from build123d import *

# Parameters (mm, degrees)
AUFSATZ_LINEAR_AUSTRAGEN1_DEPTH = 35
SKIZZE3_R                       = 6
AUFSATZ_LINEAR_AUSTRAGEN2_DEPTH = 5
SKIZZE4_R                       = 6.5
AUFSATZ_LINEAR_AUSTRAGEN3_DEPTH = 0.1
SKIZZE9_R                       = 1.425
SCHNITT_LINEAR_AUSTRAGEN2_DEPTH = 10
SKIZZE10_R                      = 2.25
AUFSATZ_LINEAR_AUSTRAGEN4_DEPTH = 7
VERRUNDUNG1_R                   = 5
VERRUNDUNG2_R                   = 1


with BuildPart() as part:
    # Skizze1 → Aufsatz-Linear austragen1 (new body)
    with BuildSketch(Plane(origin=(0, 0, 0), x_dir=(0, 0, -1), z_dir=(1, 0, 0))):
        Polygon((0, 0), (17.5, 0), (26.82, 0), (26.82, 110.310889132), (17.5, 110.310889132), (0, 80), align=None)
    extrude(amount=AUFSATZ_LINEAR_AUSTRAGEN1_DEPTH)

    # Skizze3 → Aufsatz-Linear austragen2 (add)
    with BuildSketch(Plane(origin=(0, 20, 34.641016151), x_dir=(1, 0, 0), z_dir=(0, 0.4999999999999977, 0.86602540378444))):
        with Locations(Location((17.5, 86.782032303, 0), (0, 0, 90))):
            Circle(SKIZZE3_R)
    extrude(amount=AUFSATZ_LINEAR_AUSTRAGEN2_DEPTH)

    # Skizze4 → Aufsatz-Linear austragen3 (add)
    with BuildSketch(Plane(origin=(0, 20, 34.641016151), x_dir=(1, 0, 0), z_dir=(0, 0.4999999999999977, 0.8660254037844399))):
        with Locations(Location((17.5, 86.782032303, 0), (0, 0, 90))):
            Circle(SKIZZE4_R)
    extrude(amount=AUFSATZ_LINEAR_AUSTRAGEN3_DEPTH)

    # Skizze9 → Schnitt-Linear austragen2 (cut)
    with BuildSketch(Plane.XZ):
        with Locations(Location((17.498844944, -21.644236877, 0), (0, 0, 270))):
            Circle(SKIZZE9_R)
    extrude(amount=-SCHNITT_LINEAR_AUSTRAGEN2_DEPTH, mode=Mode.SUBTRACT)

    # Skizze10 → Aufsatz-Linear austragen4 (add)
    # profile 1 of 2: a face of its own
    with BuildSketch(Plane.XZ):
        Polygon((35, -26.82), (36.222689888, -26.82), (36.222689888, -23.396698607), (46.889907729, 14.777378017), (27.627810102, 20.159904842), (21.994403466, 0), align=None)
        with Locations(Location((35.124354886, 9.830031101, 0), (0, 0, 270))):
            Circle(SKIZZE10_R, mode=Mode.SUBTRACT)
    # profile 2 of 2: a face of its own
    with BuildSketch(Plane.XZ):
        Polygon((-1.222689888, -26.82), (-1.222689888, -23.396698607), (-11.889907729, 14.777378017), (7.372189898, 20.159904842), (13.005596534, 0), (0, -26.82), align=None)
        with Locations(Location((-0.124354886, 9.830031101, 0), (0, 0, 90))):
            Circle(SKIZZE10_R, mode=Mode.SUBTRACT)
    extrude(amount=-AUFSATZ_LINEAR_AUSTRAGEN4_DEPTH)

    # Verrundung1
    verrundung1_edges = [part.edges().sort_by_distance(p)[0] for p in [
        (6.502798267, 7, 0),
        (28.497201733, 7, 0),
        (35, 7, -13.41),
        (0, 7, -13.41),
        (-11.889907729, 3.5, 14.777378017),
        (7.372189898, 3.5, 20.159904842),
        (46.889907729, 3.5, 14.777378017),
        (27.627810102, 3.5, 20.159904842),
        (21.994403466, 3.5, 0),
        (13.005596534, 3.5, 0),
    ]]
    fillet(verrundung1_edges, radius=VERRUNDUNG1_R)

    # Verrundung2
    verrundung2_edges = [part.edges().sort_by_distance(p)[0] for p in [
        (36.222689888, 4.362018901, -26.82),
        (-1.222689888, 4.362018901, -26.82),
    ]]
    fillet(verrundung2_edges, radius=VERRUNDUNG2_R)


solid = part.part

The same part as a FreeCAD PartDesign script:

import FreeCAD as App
import Part
import Sketcher
from FreeCAD import Vector
Q = App.Units.Quantity


def edges_at(feature, points):
    """Names of the edges that pass closest to the given points."""
    edges = feature.Shape.Edges
    near = lambda p: min(range(len(edges)), key=lambda i: edges[i].distToShape(Part.Vertex(*p))[0])
    return sorted({f"Edge{near(p) + 1}" for p in points})

doc = App.newDocument("Part")
body = doc.addObject("PartDesign::Body", "Body")

sketch1 = body.newObject("Sketcher::SketchObject", "Sketch")
sketch1.AttachmentSupport = (doc.getObject("YZ_Plane"), [""])
sketch1.MapMode = "FlatFace"
sketch1.addGeometry(Part.LineSegment(Vector(0, 0, 0), Vector(0, -27, 0)), False)
sketch1.addGeometry(Part.LineSegment(Vector(0, -27, 0), Vector(110, -27, 0)), False)
sketch1.addGeometry(Part.LineSegment(Vector(110, -27, 0), Vector(110, -18, 0)), False)
sketch1.addGeometry(Part.LineSegment(Vector(110, -18, 0), Vector(80, 0, 0)), False)
sketch1.addGeometry(Part.LineSegment(Vector(80, 0, 0), Vector(0, 0, 0)), False)
sketch1.addConstraint(Sketcher.Constraint("Coincident", 0, 2, 1, 1))
sketch1.addConstraint(Sketcher.Constraint("Coincident", 1, 2, 2, 1))
sketch1.addConstraint(Sketcher.Constraint("Coincident", 2, 2, 3, 1))
sketch1.addConstraint(Sketcher.Constraint("Coincident", 3, 2, 4, 1))
sketch1.addConstraint(Sketcher.Constraint("Coincident", 4, 2, 0, 1))
sketch1.addConstraint(Sketcher.Constraint("Vertical", 0))
sketch1.addConstraint(Sketcher.Constraint("Horizontal", 1))
sketch1.addConstraint(Sketcher.Constraint("Vertical", 2))
sketch1.addConstraint(Sketcher.Constraint("Horizontal", 4))
sketch1.addConstraint(Sketcher.Constraint("Coincident", 4, 2, -1, 1))
sketch1.addConstraint(Sketcher.Constraint("DistanceX", 4, 2, 4, 1, 80.0))
sketch1.addConstraint(Sketcher.Constraint("Angle", 3, Q("150 deg")))
sketch1.addConstraint(Sketcher.Constraint("Distance", 3, 35.0))
sketch1.addConstraint(Sketcher.Constraint("DistanceY", 0, 2, 0, 1, 26.82))
pad1 = body.newObject("PartDesign::Pad", "Pad")
pad1.Profile = sketch1
pad1.Length = 35

sketch2 = body.newObject("Sketcher::SketchObject", "Sketch001")
sketch2.Placement = App.Placement(Vector(0, 20, 34.641016), App.Rotation(Vector(1, 0, 0), Vector(0, 0.866025404, -0.5), Vector(0, 0.5, 0.866025404), "ZXY"))
sketch2.addGeometry(Part.Circle(Vector(18, 87, 0), Vector(0, 0, 1), 6), False)
sketch2.addConstraint(Sketcher.Constraint("Diameter", 0, 12.0))
sketch2.addConstraint(Sketcher.Constraint("DistanceX", -1, 1, 0, 3, 17.5))
sketch2.addConstraint(Sketcher.Constraint("DistanceY", -1, 1, 0, 3, 86.782032))
pad2 = body.newObject("PartDesign::Pad", "Pad001")
pad2.Profile = sketch2
pad2.Length = 5

sketch3 = body.newObject("Sketcher::SketchObject", "Sketch002")
sketch3.Placement = App.Placement(Vector(0, 20, 34.641016), App.Rotation(Vector(1, 0, 0), Vector(0, 0.866025404, -0.5), Vector(0, 0.5, 0.866025404), "ZXY"))
sketch3.addGeometry(Part.Circle(Vector(18, 87, 0), Vector(0, 0, 1), 6), False)
sketch3.addConstraint(Sketcher.Constraint("Diameter", 0, 13.0))
sketch3.addConstraint(Sketcher.Constraint("DistanceX", -1, 1, 0, 3, 17.5))
sketch3.addConstraint(Sketcher.Constraint("DistanceY", -1, 1, 0, 3, 86.782032))
pad3 = body.newObject("PartDesign::Pad", "Pad002")
pad3.Profile = sketch3
pad3.Length = 0.1

sketch4 = body.newObject("Sketcher::SketchObject", "Sketch003")
sketch4.AttachmentSupport = (doc.getObject("XZ_Plane"), [""])
sketch4.MapMode = "FlatFace"
sketch4.addGeometry(Part.Circle(Vector(17.5, -21.6, 0), Vector(0, 0, 1), 1.4), False)
sketch4.addConstraint(Sketcher.Constraint("Diameter", 0, 2.85))
sketch4.addConstraint(Sketcher.Constraint("DistanceX", -1, 1, 0, 3, 17.498845))
sketch4.addConstraint(Sketcher.Constraint("DistanceY", 0, 3, -1, 1, 21.644237))
pocket1 = body.newObject("PartDesign::Pocket", "Pocket")
pocket1.Profile = sketch4
pocket1.Length = 10

sketch5 = body.newObject("Sketcher::SketchObject", "Sketch004")
sketch5.AttachmentSupport = (doc.getObject("XZ_Plane"), [""])
sketch5.MapMode = "FlatFace"
sketch5.addGeometry(Part.LineSegment(Vector(35, -26.8, 0), Vector(36.2, -26.8, 0)), False)
sketch5.addGeometry(Part.LineSegment(Vector(36.2, -26.8, 0), Vector(36.2, -23.4, 0)), False)
sketch5.addGeometry(Part.LineSegment(Vector(36.2, -23.4, 0), Vector(46.9, 14.8, 0)), False)
sketch5.addGeometry(Part.LineSegment(Vector(46.9, 14.8, 0), Vector(27.6, 20.2, 0)), False)
sketch5.addGeometry(Part.LineSegment(Vector(27.6, 20.2, 0), Vector(22, 0, 0)), False)
sketch5.addGeometry(Part.LineSegment(Vector(22, 0, 0), Vector(35, -26.8, 0)), False)
sketch5.addGeometry(Part.Circle(Vector(35.1, 9.8, 0), Vector(0, 0, 1), 2.2), False)
sketch5.addGeometry(Part.LineSegment(Vector(-1.2, -23.4, 0), Vector(-1.2, -26.8, 0)), False)
sketch5.addGeometry(Part.LineSegment(Vector(-1.2, -26.8, 0), Vector(0, -26.8, 0)), False)
sketch5.addGeometry(Part.LineSegment(Vector(0, -26.8, 0), Vector(13, 0, 0)), False)
sketch5.addGeometry(Part.LineSegment(Vector(13, 0, 0), Vector(7.4, 20.2, 0)), False)
sketch5.addGeometry(Part.LineSegment(Vector(7.4, 20.2, 0), Vector(-11.9, 14.8, 0)), False)
sketch5.addGeometry(Part.LineSegment(Vector(-11.9, 14.8, 0), Vector(-1.2, -23.4, 0)), False)
sketch5.addGeometry(Part.Circle(Vector(-0.1, 9.8, 0), Vector(0, 0, 1), 2.2), False)
sketch5.addConstraint(Sketcher.Constraint("Coincident", 0, 2, 1, 1))
sketch5.addConstraint(Sketcher.Constraint("Coincident", 1, 2, 2, 1))
sketch5.addConstraint(Sketcher.Constraint("Coincident", 2, 2, 3, 1))
sketch5.addConstraint(Sketcher.Constraint("Coincident", 3, 2, 4, 1))
sketch5.addConstraint(Sketcher.Constraint("Coincident", 4, 2, 5, 1))
sketch5.addConstraint(Sketcher.Constraint("Coincident", 5, 2, 0, 1))
sketch5.addConstraint(Sketcher.Constraint("Coincident", 7, 2, 8, 1))
sketch5.addConstraint(Sketcher.Constraint("Coincident", 8, 2, 9, 1))
sketch5.addConstraint(Sketcher.Constraint("Coincident", 9, 2, 10, 1))
sketch5.addConstraint(Sketcher.Constraint("Coincident", 10, 2, 11, 1))
sketch5.addConstraint(Sketcher.Constraint("Coincident", 11, 2, 12, 1))
sketch5.addConstraint(Sketcher.Constraint("Coincident", 12, 2, 7, 1))
sketch5.addConstraint(Sketcher.Constraint("Horizontal", 0))
sketch5.addConstraint(Sketcher.Constraint("Vertical", 1))
sketch5.addConstraint(Sketcher.Constraint("Vertical", 7))
sketch5.addConstraint(Sketcher.Constraint("Horizontal", 8))
sketch5.addConstraint(Sketcher.Constraint("Equal", 6, 13))
sketch5.addConstraint(Sketcher.Constraint("PointOnObject", 4, 2, -1))
sketch5.addConstraint(Sketcher.Constraint("PointOnObject", 8, 2, -2))
sketch5.addConstraint(Sketcher.Constraint("PointOnObject", 9, 2, -1))
sketch5.addConstraint(Sketcher.Constraint("Perpendicular", 2, 3))
sketch5.addConstraint(Sketcher.Constraint("Perpendicular", 3, 4))
sketch5.addConstraint(Sketcher.Constraint("Perpendicular", 10, 11))
sketch5.addConstraint(Sketcher.Constraint("Perpendicular", 11, 12))
sketch5.addConstraint(Sketcher.Constraint("Horizontal", 6, 3, 13, 3))
sketch5.addConstraint(Sketcher.Constraint("Horizontal", 5, 2, 7, 2))
sketch5.addConstraint(Sketcher.Constraint("Horizontal", 3, 2, 10, 2))
sketch5.addConstraint(Sketcher.Constraint("Horizontal", 2, 2, 11, 2))
sketch5.addConstraint(Sketcher.Constraint("Horizontal", 1, 2, 12, 2))
sketch5.addConstraint(Sketcher.Constraint("Equal", 0, 8))
sketch5.addConstraint(Sketcher.Constraint("Equal", 5, 9))
sketch5.addConstraint(Sketcher.Constraint("Diameter", 6, 4.5))
sketch5.addConstraint(Sketcher.Constraint("Distance", 3, 20.0))
sketch5.addConstraint(Sketcher.Constraint("DistanceX", -1, 1, 5, 2, 35.0))
sketch5.addConstraint(Sketcher.Constraint("DistanceY", 0, 2, -1, 1, 26.82))
sketch5.addConstraint(Sketcher.Constraint("DistanceY", 1, 1, 1, 2, 3.423301))
sketch5.addConstraint(Sketcher.Constraint("Distance", 4, 20.932201))
sketch5.addConstraint(Sketcher.Constraint("DistanceX", 0, 1, 0, 2, 1.22269))
sketch5.addConstraint(Sketcher.Constraint("Distance", 2, 39.636469))
sketch5.addConstraint(Sketcher.Constraint("DistanceY", -1, 1, 6, 3, 9.830031))
sketch5.addConstraint(Sketcher.Constraint("DistanceX", 13, 3, 6, 3, 35.24871))
sketch5.addConstraint(Sketcher.Constraint("DistanceX", 4, 2, 6, 3, 13.129951))
pad4 = body.newObject("PartDesign::Pad", "Pad003")
pad4.Profile = sketch5
pad4.Length = 7
pad4.Reversed = True
doc.recompute()

fillet = body.newObject("PartDesign::Fillet", "Fillet")
fillet.Base = (pad4, edges_at(pad4, [
    (6.503, 7, 0),
    (28.497, 7, 0),
    (35, 7, -13.41),
    (0, 7, -13.41),
    (-11.89, 3.5, 14.777),
    (7.372, 3.5, 20.16),
    (46.89, 3.5, 14.777),
    (27.628, 3.5, 20.16),
    (21.994, 3.5, 0),
    (13.006, 3.5, 0),
]))
fillet.Radius = 5
doc.recompute()

fillet2 = body.newObject("PartDesign::Fillet", "Fillet001")
fillet2.Base = (fillet, edges_at(fillet, [(36.223, 4.362, -26.82), (-1.223, 4.362, -26.82)]))
fillet2.Radius = 1

doc.recompute()
